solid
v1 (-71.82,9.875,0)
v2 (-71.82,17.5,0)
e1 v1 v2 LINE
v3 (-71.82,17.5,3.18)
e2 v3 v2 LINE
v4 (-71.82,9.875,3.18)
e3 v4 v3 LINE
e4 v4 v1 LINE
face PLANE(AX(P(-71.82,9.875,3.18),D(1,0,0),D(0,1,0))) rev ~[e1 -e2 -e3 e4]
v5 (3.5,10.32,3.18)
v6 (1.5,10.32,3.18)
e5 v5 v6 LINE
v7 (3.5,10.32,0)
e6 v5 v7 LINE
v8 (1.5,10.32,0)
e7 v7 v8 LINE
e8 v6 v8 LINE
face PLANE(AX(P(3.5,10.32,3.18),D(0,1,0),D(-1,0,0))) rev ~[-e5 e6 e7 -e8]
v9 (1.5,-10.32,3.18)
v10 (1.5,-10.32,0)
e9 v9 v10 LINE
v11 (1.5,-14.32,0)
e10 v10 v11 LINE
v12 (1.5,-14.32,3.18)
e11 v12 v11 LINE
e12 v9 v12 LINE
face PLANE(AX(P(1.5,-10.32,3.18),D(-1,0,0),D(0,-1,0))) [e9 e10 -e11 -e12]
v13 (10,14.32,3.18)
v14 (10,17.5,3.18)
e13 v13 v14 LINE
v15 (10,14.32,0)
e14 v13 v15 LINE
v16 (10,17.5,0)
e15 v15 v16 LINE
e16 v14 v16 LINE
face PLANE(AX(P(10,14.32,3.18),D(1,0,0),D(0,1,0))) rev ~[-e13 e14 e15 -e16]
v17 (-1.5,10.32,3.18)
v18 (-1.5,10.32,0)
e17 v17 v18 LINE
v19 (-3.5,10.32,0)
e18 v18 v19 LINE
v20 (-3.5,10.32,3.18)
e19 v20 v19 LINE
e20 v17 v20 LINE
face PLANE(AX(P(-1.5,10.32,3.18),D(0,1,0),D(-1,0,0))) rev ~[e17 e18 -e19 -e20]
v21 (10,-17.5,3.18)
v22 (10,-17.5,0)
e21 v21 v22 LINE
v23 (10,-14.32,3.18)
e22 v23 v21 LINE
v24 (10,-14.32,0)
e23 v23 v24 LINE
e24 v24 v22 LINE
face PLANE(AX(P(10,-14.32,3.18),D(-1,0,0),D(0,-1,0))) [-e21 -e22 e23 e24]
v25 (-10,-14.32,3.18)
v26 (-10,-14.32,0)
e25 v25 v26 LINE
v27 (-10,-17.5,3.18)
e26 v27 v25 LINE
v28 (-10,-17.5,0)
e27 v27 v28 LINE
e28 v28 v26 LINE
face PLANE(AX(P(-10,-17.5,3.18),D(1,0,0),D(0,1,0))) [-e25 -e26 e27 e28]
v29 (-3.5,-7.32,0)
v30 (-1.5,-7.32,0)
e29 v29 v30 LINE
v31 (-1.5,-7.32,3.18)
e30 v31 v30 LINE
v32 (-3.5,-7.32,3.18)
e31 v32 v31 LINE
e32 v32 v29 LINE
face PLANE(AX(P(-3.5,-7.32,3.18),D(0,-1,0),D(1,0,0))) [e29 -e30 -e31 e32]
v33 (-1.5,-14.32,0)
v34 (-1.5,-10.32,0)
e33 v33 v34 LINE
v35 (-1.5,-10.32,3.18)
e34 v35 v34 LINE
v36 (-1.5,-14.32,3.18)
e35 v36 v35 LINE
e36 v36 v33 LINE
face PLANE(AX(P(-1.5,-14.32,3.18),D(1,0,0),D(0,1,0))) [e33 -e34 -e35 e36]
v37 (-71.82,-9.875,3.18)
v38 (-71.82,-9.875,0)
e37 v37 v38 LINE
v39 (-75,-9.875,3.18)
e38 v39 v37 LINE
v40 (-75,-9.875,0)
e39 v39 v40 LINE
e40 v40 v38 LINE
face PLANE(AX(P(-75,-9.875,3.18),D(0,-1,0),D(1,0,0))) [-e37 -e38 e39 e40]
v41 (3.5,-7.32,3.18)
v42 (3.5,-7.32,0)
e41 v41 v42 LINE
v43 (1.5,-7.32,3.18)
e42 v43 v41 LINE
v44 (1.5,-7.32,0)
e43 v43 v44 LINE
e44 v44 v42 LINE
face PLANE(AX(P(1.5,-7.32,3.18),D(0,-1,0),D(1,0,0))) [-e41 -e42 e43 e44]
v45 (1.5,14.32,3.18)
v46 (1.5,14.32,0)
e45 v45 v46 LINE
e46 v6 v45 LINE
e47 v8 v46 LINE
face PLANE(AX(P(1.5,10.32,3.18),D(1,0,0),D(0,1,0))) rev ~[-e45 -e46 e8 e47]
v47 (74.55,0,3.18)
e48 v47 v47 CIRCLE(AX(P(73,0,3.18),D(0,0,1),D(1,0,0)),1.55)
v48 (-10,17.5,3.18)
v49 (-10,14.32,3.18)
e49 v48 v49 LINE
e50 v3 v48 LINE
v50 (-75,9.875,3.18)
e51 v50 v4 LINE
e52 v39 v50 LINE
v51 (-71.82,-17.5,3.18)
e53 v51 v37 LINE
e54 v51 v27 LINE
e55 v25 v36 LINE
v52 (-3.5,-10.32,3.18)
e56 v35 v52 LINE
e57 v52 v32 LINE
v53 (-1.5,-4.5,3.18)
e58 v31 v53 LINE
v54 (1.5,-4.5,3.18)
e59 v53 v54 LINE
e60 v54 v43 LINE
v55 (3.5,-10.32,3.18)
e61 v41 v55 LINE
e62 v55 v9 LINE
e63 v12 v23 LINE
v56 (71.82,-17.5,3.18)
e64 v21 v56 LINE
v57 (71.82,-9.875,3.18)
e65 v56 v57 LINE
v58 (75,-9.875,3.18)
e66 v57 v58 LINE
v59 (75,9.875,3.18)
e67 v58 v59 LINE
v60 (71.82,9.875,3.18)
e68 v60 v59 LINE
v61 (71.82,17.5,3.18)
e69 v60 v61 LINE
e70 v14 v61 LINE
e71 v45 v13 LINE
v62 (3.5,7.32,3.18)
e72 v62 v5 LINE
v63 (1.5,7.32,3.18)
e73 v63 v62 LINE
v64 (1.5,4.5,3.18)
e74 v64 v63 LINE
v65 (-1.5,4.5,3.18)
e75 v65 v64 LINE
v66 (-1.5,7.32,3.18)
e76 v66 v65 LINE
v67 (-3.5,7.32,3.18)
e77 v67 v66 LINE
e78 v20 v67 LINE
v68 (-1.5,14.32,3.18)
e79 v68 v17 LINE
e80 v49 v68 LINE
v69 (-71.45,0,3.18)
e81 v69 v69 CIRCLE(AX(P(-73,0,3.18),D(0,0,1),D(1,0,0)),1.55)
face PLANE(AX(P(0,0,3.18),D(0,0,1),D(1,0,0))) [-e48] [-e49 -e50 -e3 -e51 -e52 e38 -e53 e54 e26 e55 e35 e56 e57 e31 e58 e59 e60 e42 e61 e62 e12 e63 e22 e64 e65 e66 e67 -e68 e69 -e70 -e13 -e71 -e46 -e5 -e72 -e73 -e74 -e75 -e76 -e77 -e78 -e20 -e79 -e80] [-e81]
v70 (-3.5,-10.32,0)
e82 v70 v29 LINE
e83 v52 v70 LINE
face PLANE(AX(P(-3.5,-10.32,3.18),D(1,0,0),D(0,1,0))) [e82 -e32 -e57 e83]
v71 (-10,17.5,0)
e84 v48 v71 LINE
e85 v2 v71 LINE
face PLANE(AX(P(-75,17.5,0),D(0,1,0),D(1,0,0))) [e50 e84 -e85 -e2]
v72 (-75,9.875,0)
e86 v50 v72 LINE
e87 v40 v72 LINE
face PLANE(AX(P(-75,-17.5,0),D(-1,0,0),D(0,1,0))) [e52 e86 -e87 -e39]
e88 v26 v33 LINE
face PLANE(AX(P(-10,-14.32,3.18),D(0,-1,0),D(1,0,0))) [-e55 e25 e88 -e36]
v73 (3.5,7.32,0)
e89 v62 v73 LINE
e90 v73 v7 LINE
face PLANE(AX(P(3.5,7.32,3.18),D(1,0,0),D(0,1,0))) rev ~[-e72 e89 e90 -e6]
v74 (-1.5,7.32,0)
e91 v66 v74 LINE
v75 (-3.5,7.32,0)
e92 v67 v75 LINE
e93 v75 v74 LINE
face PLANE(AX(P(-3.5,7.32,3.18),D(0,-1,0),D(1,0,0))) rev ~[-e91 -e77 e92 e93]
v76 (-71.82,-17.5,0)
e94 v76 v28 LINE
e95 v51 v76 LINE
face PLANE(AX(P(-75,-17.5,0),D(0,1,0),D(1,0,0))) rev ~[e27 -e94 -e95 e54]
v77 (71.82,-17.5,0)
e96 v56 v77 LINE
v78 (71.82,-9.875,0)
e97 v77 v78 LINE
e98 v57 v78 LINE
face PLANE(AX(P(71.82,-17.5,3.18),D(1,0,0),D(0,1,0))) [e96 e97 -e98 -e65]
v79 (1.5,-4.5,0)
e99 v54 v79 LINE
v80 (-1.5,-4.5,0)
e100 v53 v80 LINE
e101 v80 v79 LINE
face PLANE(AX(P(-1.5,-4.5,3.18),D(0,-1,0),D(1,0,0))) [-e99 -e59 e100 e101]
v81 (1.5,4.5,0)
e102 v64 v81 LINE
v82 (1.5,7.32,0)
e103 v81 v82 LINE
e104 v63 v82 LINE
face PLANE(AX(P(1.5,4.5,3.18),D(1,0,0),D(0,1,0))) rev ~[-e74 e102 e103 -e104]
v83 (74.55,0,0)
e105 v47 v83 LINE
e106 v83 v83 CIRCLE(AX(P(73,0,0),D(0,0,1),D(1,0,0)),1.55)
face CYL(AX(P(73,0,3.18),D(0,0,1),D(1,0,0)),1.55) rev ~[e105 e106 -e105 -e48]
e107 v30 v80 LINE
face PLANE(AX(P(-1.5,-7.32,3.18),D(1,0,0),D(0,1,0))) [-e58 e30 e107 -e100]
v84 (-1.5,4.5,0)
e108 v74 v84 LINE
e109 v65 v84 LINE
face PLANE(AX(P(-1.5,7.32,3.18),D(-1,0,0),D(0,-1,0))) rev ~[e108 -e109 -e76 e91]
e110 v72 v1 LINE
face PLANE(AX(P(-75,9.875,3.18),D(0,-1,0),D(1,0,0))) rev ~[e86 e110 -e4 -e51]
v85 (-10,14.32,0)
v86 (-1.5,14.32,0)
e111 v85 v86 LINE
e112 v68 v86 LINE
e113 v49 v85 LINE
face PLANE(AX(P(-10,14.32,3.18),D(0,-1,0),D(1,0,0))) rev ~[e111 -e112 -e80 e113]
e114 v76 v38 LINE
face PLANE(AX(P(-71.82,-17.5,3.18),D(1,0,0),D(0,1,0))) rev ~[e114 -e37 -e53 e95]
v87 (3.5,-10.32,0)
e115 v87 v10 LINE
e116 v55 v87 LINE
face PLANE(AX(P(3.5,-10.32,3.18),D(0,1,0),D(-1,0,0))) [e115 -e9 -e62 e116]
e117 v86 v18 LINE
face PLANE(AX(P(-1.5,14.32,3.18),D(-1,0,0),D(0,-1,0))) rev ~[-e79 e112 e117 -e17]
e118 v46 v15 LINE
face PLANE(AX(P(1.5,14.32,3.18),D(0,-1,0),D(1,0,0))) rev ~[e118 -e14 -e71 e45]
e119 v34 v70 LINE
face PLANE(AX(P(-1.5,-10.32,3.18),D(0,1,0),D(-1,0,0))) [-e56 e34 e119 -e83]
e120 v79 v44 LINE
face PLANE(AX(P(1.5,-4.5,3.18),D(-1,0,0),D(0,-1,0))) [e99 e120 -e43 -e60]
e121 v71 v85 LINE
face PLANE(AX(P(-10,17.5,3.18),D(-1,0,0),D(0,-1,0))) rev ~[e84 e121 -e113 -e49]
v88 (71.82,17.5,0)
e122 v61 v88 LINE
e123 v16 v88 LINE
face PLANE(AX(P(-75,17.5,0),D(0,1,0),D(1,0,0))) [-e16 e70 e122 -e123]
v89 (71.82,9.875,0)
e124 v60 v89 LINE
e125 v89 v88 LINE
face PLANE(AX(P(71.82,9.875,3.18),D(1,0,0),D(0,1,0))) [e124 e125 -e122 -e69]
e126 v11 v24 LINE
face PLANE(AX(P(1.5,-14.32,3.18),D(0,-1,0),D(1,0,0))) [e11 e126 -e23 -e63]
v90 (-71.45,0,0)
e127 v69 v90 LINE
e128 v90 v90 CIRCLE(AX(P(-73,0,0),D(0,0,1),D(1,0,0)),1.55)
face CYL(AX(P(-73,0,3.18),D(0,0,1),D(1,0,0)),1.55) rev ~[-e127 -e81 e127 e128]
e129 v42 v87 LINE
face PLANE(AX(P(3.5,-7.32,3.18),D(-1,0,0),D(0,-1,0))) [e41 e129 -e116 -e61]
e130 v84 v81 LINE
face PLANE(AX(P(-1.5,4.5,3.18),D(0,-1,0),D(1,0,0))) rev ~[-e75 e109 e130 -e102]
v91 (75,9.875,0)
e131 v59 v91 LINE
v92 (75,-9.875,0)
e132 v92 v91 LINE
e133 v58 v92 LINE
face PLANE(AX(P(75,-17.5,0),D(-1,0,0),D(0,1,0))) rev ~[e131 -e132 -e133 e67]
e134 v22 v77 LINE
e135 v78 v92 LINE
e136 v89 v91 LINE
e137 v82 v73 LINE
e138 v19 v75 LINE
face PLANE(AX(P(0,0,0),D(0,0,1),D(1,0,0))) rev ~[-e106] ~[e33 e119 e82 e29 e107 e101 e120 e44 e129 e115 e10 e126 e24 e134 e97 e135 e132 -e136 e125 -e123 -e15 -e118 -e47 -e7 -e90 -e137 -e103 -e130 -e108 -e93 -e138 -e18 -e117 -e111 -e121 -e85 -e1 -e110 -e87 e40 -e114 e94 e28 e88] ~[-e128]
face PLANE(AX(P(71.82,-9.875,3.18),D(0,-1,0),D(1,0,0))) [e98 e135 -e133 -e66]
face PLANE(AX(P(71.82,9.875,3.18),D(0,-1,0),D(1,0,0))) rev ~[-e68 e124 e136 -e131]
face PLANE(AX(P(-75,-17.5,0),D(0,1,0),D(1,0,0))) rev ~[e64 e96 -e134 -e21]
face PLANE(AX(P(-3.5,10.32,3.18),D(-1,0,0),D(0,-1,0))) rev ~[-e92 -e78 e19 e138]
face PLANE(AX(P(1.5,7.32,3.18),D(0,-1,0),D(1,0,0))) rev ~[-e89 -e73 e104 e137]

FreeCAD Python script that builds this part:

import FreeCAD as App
import Part
import Sketcher

V = App.Vector
Q = App.Units.Quantity

doc = App.newDocument("Part")
body = doc.addObject("PartDesign::Body", "Body")

sketch1 = body.newObject("Sketcher::SketchObject", "Sketch")
sketch1.AttachmentSupport = (doc.getObject("XY_Plane"), [""])
sketch1.MapMode = "FlatFace"
sketch1.addGeometry([
    Part.LineSegment(V(-75, 17.5, 0), V(-75, -17.5, 0)),
    Part.LineSegment(V(-75, -17.5, 0), V(75, -17.5, 0)),
    Part.LineSegment(V(75, -17.5, 0), V(75, 17.5, 0)),
    Part.LineSegment(V(75, 17.5, 0), V(-75, 17.5, 0)),
], False)
sketch1.addConstraint([
    Sketcher.Constraint("Coincident", 0, 2, 1, 1),
    Sketcher.Constraint("Coincident", 1, 2, 2, 1),
    Sketcher.Constraint("Coincident", 2, 2, 3, 1),
    Sketcher.Constraint("Coincident", 3, 2, 0, 1),
    Sketcher.Constraint("Vertical", 0),
    Sketcher.Constraint("Horizontal", 1),
    Sketcher.Constraint("Vertical", 2),
    Sketcher.Constraint("Horizontal", 3),
    Sketcher.Constraint("Symmetric", 0, 2, 2, 2, -1, 1),
    Sketcher.Constraint("DistanceX", 1, 1, 1, 2, Q("150 mm")),
    Sketcher.Constraint("DistanceY", 0, 2, 0, 1, Q("35 mm")),
])
pad1 = body.newObject("PartDesign::Pad", "Pad")
pad1.Profile = sketch1
pad1.Length = 3.18

sketch2 = body.newObject("Sketcher::SketchObject", "Sketch001")
sketch2.AttachmentSupport = (doc.getObject("XY_Plane"), [""])
sketch2.MapMode = "FlatFace"
sketch2.AttachmentOffset = App.Placement(V(0, 0, 3.18), App.Rotation())
sketch2.addGeometry([
    Part.Circle(V(-73, 0, 0), V(0, 0, 1), 1.55),
    Part.Circle(V(73, 0, 0), V(0, 0, 1), 1.55),
    Part.LineSegment(V(1.5, 14.32, 0), V(10, 14.32, 0)),
    Part.LineSegment(V(10, 14.32, 0), V(10, 17.5, 0)),
    Part.LineSegment(V(10, 17.5, 0), V(-10, 17.5, 0)),
    Part.LineSegment(V(-10, 17.5, 0), V(-10, 14.32, 0)),
    Part.LineSegment(V(-10, 14.32, 0), V(-1.5, 14.32, 0)),
    Part.LineSegment(V(-1.5, 14.32, 0), V(-1.5, 10.32, 0)),
    Part.LineSegment(V(-1.5, 10.32, 0), V(-3.5, 10.32, 0)),
    Part.LineSegment(V(-3.5, 10.32, 0), V(-3.5, 7.32, 0)),
    Part.LineSegment(V(-3.5, 7.32, 0), V(-1.5, 7.32, 0)),
    Part.LineSegment(V(-1.5, 7.32, 0), V(-1.5, 4.5, 0)),
    Part.LineSegment(V(-1.5, 4.5, 0), V(1.5, 4.5, 0)),
    Part.LineSegment(V(1.5, 4.5, 0), V(1.5, 7.32, 0)),
    Part.LineSegment(V(1.5, 7.32, 0), V(3.5, 7.32, 0)),
    Part.LineSegment(V(3.5, 7.32, 0), V(3.5, 10.32, 0)),
    Part.LineSegment(V(3.5, 10.32, 0), V(1.5, 10.32, 0)),
    Part.LineSegment(V(1.5, 10.32, 0), V(1.5, 14.32, 0)),
    Part.LineSegment(V(-1.5, -4.5, 0), V(-1.5, -7.32, 0)),
    Part.LineSegment(V(-1.5, -7.32, 0), V(-3.5, -7.32, 0)),
    Part.LineSegment(V(-3.5, -7.32, 0), V(-3.5, -10.32, 0)),
    Part.LineSegment(V(-3.5, -10.32, 0), V(-1.5, -10.32, 0)),
    Part.LineSegment(V(-1.5, -10.32, 0), V(-1.5, -14.32, 0)),
    Part.LineSegment(V(-1.5, -14.32, 0), V(-10, -14.32, 0)),
    Part.LineSegment(V(-10, -14.32, 0), V(-10, -17.5, 0)),
    Part.LineSegment(V(-10, -17.5, 0), V(10, -17.5, 0)),
    Part.LineSegment(V(10, -17.5, 0), V(10, -14.32, 0)),
    Part.LineSegment(V(10, -14.32, 0), V(1.5, -14.32, 0)),
    Part.LineSegment(V(1.5, -14.32, 0), V(1.5, -10.32, 0)),
    Part.LineSegment(V(1.5, -10.32, 0), V(3.5, -10.32, 0)),
    Part.LineSegment(V(3.5, -10.32, 0), V(3.5, -7.32, 0)),
    Part.LineSegment(V(3.5, -7.32, 0), V(1.5, -7.32, 0)),
    Part.LineSegment(V(1.5, -7.32, 0), V(1.5, -4.5, 0)),
    Part.LineSegment(V(1.5, -4.5, 0), V(-1.5, -4.5, 0)),
    Part.LineSegment(V(71.82, -9.875, 0), V(71.82, -17.5, 0)),
    Part.LineSegment(V(71.82, -17.5, 0), V(75, -17.5, 0)),
    Part.LineSegment(V(75, -17.5, 0), V(75, -9.875, 0)),
    Part.LineSegment(V(75, -9.875, 0), V(71.82, -9.875, 0)),
    Part.LineSegment(V(-75, 17.5, 0), V(-75, 9.875, 0)),
    Part.LineSegment(V(-75, 9.875, 0), V(-71.82, 9.875, 0)),
    Part.LineSegment(V(-71.82, 9.875, 0), V(-71.82, 17.5, 0)),
    Part.LineSegment(V(-71.82, 17.5, 0), V(-75, 17.5, 0)),
    Part.LineSegment(V(-75, -9.875, 0), V(-75, -17.5, 0)),
    Part.LineSegment(V(-75, -17.5, 0), V(-71.82, -17.5, 0)),
    Part.LineSegment(V(-71.82, -17.5, 0), V(-71.82, -9.875, 0)),
    Part.LineSegment(V(-71.82, -9.875, 0), V(-75, -9.875, 0)),
    Part.LineSegment(V(71.82, 17.5, 0), V(71.82, 9.875, 0)),
    Part.LineSegment(V(71.82, 9.875, 0), V(75, 9.875, 0)),
    Part.LineSegment(V(75, 9.875, 0), V(75, 17.5, 0)),
    Part.LineSegment(V(75, 17.5, 0), V(71.82, 17.5, 0)),
], False)
sketch2.addConstraint([
    Sketcher.Constraint("Coincident", 2, 2, 3, 1),
    Sketcher.Constraint("Coincident", 3, 2, 4, 1),
    Sketcher.Constraint("Coincident", 4, 2, 5, 1),
    Sketcher.Constraint("Coincident", 5, 2, 6, 1),
    Sketcher.Constraint("Coincident", 6, 2, 7, 1),
    Sketcher.Constraint("Coincident", 7, 2, 8, 1),
    Sketcher.Constraint("Coincident", 8, 2, 9, 1),
    Sketcher.Constraint("Coincident", 9, 2, 10, 1),
    Sketcher.Constraint("Coincident", 10, 2, 11, 1),
    Sketcher.Constraint("Coincident", 11, 2, 12, 1),
    Sketcher.Constraint("Coincident", 12, 2, 13, 1),
    Sketcher.Constraint("Coincident", 13, 2, 14, 1),
    Sketcher.Constraint("Coincident", 14, 2, 15, 1),
    Sketcher.Constraint("Coincident", 15, 2, 16, 1),
    Sketcher.Constraint("Coincident", 16, 2, 17, 1),
    Sketcher.Constraint("Coincident", 17, 2, 2, 1),
    Sketcher.Constraint("Coincident", 18, 2, 19, 1),
    Sketcher.Constraint("Coincident", 19, 2, 20, 1),
    Sketcher.Constraint("Coincident", 20, 2, 21, 1),
    Sketcher.Constraint("Coincident", 21, 2, 22, 1),
    Sketcher.Constraint("Coincident", 22, 2, 23, 1),
    Sketcher.Constraint("Coincident", 23, 2, 24, 1),
    Sketcher.Constraint("Coincident", 24, 2, 25, 1),
    Sketcher.Constraint("Coincident", 25, 2, 26, 1),
    Sketcher.Constraint("Coincident", 26, 2, 27, 1),
    Sketcher.Constraint("Coincident", 27, 2, 28, 1),
    Sketcher.Constraint("Coincident", 28, 2, 29, 1),
    Sketcher.Constraint("Coincident", 29, 2, 30, 1),
    Sketcher.Constraint("Coincident", 30, 2, 31, 1),
    Sketcher.Constraint("Coincident", 31, 2, 32, 1),
    Sketcher.Constraint("Coincident", 32, 2, 33, 1),
    Sketcher.Constraint("Coincident", 33, 2, 18, 1),
    Sketcher.Constraint("Coincident", 34, 2, 35, 1),
    Sketcher.Constraint("Coincident", 35, 2, 36, 1),
    Sketcher.Constraint("Coincident", 36, 2, 37, 1),
    Sketcher.Constraint("Coincident", 37, 2, 34, 1),
    Sketcher.Constraint("Coincident", 38, 2, 39, 1),
    Sketcher.Constraint("Coincident", 39, 2, 40, 1),
    Sketcher.Constraint("Coincident", 40, 2, 41, 1),
    Sketcher.Constraint("Coincident", 41, 2, 38, 1),
    Sketcher.Constraint("Coincident", 42, 2, 43, 1),
    Sketcher.Constraint("Coincident", 43, 2, 44, 1),
    Sketcher.Constraint("Coincident", 44, 2, 45, 1),
    Sketcher.Constraint("Coincident", 45, 2, 42, 1),
    Sketcher.Constraint("Coincident", 46, 2, 47, 1),
    Sketcher.Constraint("Coincident", 47, 2, 48, 1),
    Sketcher.Constraint("Coincident", 48, 2, 49, 1),
    Sketcher.Constraint("Coincident", 49, 2, 46, 1),
    Sketcher.Constraint("Horizontal", 2),
    Sketcher.Constraint("Vertical", 3),
    Sketcher.Constraint("Horizontal", 4),
    Sketcher.Constraint("Vertical", 5),
    Sketcher.Constraint("Horizontal", 6),
    Sketcher.Constraint("Vertical", 7),
    Sketcher.Constraint("Horizontal", 8),
    Sketcher.Constraint("Vertical", 9),
    Sketcher.Constraint("Horizontal", 10),
    Sketcher.Constraint("Vertical", 11),
    Sketcher.Constraint("Horizontal", 12),
    Sketcher.Constraint("Vertical", 13),
    Sketcher.Constraint("Horizontal", 14),
    Sketcher.Constraint("Vertical", 15),
    Sketcher.Constraint("Horizontal", 16),
    Sketcher.Constraint("Vertical", 17),
    Sketcher.Constraint("Vertical", 18),
    Sketcher.Constraint("Horizontal", 19),
    Sketcher.Constraint("Vertical", 20),
    Sketcher.Constraint("Horizontal", 21),
    Sketcher.Constraint("Vertical", 22),
    Sketcher.Constraint("Horizontal", 23),
    Sketcher.Constraint("Vertical", 24),
    Sketcher.Constraint("Horizontal", 25),
    Sketcher.Constraint("Vertical", 26),
    Sketcher.Constraint("Horizontal", 27),
    Sketcher.Constraint("Vertical", 28),
    Sketcher.Constraint("Horizontal", 29),
    Sketcher.Constraint("Vertical", 30),
    Sketcher.Constraint("Horizontal", 31),
    Sketcher.Constraint("Vertical", 32),
    Sketcher.Constraint("Horizontal", 33),
    Sketcher.Constraint("Vertical", 34),
    Sketcher.Constraint("Horizontal", 35),
    Sketcher.Constraint("Vertical", 36),
    Sketcher.Constraint("Horizontal", 37),
    Sketcher.Constraint("Vertical", 38),
    Sketcher.Constraint("Horizontal", 39),
    Sketcher.Constraint("Vertical", 40),
    Sketcher.Constraint("Horizontal", 41),
    Sketcher.Constraint("Vertical", 42),
    Sketcher.Constraint("Horizontal", 43),
    Sketcher.Constraint("Vertical", 44),
    Sketcher.Constraint("Horizontal", 45),
    Sketcher.Constraint("Vertical", 46),
    Sketcher.Constraint("Horizontal", 47),
    Sketcher.Constraint("Vertical", 48),
    Sketcher.Constraint("Horizontal", 49),
    Sketcher.Constraint("Equal", 0, 1),
    Sketcher.Constraint("Symmetric", 0, 3, 1, 3, -1, 1),
    Sketcher.Constraint("Symmetric", 13, 2, 18, 2, -1, 1),
    Sketcher.Constraint("Symmetric", 15, 2, 20, 2, -1, 1),
    Sketcher.Constraint("Symmetric", 17, 2, 22, 2, -1, 1),
    Sketcher.Constraint("Symmetric", 3, 2, 24, 2, -1, 1),
    Sketcher.Constraint("Symmetric", 5, 2, 26, 2, -1, 1),
    Sketcher.Constraint("Symmetric", 7, 2, 28, 2, -1, 1),
    Sketcher.Constraint("Symmetric", 9, 2, 30, 2, -1, 1),
    Sketcher.Constraint("Symmetric", 11, 2, 32, 2, -1, 1),
    Sketcher.Constraint("Symmetric", 36, 2, 38, 2, -1, 1),
    Sketcher.Constraint("Symmetric", 34, 2, 40, 2, -1, 1),
    Sketcher.Constraint("Symmetric", 44, 2, 46, 2, -1, 1),
    Sketcher.Constraint("Symmetric", 42, 2, 48, 2, -1, 1),
    Sketcher.Constraint("Symmetric", 2, 2, 5, 2, -2),
    Sketcher.Constraint("Symmetric", 10, 2, 13, 2, -2),
    Sketcher.Constraint("Symmetric", 8, 2, 15, 2, -2),
    Sketcher.Constraint("Symmetric", 35, 2, 42, 2, -2),
    Sketcher.Constraint("Symmetric", 37, 2, 44, 2, -2),
    Sketcher.Constraint("PointOnObject", 0, 3, -1),
    Sketcher.Constraint("Horizontal", 25, 2, 34, 2),
    Sketcher.Constraint("Vertical", 7, 2, 10, 2),
    Sketcher.Constraint("Vertical", 13, 2, 16, 2),
    Sketcher.Constraint("Equal", 49, 3),
    Sketcher.Constraint("Equal", 33, 9),
    Sketcher.Constraint("Diameter", 0, Q("3.1 mm")),
    Sketcher.Constraint("DistanceX", 4, 2, 4, 1, Q("20 mm")),
    Sketcher.Constraint("DistanceX", 8, 2, 8, 1, Q("2 mm")),
    Sketcher.Constraint("DistanceX", 12, 1, 12, 2, Q("3 mm")),
    Sketcher.Constraint("DistanceY", 7, 2, 7, 1, Q("4 mm")),
    Sketcher.Constraint("DistanceX", 0, 3, -1, 1, Q("73 mm")),
    Sketcher.Constraint("DistanceX", -1, 1, 35, 2, Q("75 mm")),
    Sketcher.Constraint("DistanceY", 42, 2, 41, 2, Q("35 mm")),
    Sketcher.Constraint("DistanceX", 35, 1, 35, 2, Q("3.18 mm")),
    Sketcher.Constraint("DistanceY", 11, 2, 11, 1, Q("2.82 mm")),
    Sketcher.Constraint("DistanceY", 34, 2, 34, 1, Q("7.625 mm")),
])
pocket1 = body.newObject("PartDesign::Pocket", "Pocket")
pocket1.Profile = sketch2
pocket1.Type = "ThroughAll"

doc.recompute()
